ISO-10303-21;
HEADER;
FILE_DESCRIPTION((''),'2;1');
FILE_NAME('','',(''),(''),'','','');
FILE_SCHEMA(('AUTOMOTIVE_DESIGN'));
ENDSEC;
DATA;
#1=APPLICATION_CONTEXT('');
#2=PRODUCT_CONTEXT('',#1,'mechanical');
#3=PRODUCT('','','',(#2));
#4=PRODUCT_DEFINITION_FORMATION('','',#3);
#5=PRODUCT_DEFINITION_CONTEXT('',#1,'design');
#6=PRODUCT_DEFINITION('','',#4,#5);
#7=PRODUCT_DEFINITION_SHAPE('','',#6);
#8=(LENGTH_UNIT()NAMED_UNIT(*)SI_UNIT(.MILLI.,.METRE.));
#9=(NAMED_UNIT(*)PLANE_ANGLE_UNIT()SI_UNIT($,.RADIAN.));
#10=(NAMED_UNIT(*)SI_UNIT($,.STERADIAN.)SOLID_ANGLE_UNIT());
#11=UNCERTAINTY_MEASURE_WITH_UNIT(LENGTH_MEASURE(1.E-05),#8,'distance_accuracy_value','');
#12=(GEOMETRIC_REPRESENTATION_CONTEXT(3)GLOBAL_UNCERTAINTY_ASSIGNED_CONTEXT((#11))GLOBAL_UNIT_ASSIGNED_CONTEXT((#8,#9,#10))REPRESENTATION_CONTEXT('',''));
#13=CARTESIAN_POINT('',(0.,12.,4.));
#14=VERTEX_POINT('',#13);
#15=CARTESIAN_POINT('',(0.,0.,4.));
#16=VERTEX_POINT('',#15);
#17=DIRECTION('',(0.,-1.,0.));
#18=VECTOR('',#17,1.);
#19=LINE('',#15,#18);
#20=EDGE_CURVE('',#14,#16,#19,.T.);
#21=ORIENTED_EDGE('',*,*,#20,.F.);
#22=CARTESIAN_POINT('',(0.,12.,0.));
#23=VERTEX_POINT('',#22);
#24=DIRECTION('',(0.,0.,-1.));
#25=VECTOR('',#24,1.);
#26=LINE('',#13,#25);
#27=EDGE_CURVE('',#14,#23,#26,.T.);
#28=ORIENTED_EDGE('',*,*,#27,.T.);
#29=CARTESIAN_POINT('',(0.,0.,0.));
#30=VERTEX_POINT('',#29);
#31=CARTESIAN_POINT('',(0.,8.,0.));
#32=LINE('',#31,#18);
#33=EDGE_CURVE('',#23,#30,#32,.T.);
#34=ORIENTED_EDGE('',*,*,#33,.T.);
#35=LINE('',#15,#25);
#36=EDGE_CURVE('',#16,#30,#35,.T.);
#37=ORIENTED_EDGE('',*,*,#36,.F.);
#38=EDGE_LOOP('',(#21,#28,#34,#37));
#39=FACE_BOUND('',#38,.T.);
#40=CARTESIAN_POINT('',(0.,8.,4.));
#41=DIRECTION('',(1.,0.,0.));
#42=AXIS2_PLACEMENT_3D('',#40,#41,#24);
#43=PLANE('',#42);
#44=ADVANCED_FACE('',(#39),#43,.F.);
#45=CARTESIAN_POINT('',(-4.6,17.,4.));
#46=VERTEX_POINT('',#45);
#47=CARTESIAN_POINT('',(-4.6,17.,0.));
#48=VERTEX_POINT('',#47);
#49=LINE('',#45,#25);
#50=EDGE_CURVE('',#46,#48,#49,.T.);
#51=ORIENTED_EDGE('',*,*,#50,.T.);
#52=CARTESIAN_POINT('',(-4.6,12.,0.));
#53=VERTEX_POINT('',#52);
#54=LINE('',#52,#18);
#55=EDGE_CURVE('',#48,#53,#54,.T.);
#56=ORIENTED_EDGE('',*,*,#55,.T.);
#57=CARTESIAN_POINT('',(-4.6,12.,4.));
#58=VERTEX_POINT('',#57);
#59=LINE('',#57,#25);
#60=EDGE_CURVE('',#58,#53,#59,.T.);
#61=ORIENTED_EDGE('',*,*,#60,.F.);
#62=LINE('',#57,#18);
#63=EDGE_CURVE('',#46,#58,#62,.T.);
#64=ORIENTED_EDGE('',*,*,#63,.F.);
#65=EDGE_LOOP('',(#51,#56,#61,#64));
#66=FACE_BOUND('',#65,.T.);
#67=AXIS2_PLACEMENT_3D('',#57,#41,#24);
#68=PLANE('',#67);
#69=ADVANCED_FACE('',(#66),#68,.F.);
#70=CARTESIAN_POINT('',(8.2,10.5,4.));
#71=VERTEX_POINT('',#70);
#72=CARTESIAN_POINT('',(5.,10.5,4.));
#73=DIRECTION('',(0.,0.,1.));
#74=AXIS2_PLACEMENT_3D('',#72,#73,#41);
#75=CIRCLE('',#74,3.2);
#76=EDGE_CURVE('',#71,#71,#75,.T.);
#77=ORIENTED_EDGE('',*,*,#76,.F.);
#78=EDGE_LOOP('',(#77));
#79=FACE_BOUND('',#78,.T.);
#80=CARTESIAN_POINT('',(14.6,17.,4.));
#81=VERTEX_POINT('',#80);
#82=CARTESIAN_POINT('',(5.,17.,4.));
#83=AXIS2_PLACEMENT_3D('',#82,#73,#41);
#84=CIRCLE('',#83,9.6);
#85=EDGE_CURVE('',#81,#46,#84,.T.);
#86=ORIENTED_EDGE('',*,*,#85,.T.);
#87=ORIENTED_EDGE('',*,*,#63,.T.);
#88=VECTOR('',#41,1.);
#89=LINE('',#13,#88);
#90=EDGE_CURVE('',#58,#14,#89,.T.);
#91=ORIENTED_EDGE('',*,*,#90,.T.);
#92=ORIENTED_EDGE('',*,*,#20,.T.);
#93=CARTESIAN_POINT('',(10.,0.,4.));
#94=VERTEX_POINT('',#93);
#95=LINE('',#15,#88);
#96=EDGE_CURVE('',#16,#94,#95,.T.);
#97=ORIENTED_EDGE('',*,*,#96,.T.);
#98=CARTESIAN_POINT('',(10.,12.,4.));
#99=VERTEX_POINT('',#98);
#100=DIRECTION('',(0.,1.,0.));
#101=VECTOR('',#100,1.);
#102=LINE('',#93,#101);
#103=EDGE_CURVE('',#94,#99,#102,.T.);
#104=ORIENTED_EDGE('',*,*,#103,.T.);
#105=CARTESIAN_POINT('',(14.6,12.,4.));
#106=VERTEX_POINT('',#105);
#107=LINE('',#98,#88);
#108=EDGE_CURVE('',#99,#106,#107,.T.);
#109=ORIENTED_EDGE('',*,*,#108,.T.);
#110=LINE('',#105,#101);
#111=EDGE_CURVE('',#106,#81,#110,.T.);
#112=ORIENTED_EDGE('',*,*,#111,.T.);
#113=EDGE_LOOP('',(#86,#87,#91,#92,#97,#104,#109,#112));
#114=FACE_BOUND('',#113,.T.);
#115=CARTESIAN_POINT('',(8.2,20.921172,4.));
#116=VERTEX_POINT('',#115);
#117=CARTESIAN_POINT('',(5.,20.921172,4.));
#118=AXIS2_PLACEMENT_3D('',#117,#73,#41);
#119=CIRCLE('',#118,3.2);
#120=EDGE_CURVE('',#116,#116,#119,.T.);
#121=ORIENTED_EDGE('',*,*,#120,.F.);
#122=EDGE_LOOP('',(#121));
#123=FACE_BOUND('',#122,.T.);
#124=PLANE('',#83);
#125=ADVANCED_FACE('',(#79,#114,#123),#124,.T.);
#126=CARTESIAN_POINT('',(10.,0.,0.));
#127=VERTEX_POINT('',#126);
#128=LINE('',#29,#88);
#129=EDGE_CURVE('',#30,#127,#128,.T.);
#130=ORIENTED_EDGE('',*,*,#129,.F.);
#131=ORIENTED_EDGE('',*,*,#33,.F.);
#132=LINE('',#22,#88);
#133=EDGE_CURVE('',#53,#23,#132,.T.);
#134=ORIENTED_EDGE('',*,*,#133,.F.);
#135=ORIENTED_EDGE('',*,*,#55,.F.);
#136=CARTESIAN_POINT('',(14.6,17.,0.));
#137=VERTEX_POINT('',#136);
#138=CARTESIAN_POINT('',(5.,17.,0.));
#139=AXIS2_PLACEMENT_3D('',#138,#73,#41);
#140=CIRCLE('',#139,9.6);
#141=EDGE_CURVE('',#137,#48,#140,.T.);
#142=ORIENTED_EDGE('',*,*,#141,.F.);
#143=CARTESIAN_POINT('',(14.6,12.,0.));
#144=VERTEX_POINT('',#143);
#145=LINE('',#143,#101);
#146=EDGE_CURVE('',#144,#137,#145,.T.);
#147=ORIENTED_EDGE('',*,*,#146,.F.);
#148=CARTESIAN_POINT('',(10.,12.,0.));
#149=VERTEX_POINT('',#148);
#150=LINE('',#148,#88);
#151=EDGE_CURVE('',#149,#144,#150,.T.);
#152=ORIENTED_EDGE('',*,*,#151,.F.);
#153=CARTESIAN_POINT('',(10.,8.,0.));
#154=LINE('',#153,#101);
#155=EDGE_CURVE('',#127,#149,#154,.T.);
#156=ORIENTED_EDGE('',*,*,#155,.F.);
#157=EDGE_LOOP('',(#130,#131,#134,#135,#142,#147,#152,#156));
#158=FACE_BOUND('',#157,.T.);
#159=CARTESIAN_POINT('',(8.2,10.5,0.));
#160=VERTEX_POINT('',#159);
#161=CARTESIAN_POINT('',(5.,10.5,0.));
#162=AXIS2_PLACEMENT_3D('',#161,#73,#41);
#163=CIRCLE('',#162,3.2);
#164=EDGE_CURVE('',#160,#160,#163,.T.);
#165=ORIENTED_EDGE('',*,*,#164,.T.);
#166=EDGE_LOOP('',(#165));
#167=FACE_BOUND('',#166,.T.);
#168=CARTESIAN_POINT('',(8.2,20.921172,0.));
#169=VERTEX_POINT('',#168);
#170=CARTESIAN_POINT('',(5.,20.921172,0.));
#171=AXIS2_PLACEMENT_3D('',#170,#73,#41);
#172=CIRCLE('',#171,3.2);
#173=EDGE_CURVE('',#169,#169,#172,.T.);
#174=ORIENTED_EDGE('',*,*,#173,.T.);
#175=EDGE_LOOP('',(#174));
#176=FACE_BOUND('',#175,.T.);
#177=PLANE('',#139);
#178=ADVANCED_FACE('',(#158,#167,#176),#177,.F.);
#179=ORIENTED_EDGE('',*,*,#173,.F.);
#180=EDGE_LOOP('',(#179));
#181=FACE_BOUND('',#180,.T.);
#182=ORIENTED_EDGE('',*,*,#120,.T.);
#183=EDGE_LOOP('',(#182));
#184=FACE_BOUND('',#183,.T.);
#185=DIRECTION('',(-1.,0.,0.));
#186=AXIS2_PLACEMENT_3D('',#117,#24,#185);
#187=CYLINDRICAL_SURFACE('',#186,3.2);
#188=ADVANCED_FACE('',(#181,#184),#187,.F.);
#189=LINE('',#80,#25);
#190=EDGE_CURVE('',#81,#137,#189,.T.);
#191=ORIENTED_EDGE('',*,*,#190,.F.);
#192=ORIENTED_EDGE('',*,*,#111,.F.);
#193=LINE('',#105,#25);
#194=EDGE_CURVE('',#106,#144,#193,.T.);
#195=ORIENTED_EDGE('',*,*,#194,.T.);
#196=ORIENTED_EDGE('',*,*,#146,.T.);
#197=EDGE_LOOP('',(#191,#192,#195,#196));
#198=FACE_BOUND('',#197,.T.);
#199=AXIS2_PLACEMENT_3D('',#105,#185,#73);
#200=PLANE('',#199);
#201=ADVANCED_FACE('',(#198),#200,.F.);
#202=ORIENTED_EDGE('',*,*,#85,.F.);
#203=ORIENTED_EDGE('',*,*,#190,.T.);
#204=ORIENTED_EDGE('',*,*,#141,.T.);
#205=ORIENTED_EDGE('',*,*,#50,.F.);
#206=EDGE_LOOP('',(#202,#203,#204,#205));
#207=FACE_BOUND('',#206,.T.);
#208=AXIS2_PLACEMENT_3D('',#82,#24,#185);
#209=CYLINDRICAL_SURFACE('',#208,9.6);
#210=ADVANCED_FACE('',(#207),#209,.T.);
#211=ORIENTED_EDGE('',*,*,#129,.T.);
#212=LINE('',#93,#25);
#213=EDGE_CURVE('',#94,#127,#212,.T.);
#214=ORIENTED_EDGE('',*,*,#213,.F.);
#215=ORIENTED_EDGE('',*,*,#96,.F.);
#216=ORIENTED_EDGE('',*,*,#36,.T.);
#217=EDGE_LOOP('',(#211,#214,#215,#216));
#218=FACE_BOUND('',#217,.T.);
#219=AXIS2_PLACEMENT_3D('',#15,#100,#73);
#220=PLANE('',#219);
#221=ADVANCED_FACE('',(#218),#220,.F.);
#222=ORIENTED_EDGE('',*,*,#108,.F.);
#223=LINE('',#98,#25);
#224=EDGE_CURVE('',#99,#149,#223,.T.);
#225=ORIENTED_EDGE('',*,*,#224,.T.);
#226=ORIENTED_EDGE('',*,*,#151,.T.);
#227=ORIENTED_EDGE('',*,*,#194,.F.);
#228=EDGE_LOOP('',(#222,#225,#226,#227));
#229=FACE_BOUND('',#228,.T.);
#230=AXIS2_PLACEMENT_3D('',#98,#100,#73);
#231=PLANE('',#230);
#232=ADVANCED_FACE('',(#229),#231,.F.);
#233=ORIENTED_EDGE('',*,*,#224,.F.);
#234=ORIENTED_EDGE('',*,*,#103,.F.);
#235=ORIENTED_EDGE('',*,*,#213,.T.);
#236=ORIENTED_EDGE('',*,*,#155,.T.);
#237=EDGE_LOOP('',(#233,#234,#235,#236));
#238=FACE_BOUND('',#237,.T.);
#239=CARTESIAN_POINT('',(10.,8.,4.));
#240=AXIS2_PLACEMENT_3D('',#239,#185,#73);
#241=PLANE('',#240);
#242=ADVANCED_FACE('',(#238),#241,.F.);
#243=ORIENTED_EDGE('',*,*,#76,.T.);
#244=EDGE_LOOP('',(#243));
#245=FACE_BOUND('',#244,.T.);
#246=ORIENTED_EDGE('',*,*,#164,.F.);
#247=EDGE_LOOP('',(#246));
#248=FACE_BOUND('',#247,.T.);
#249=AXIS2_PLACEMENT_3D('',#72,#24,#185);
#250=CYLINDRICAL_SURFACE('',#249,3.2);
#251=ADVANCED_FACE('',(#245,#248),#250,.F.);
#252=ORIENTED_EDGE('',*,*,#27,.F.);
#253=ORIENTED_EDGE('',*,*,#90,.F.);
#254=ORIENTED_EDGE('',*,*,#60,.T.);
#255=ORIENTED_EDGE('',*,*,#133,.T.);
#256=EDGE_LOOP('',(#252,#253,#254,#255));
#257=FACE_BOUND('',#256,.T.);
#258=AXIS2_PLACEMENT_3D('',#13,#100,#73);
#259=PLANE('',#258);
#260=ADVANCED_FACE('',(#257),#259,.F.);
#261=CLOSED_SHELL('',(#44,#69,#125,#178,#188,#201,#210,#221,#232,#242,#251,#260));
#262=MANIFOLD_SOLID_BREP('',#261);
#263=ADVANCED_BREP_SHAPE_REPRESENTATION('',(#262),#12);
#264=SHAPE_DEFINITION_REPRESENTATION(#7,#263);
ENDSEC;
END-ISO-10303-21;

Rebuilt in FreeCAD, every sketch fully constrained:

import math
import FreeCAD as App
import Part
import Sketcher
from FreeCAD import Vector
Q = App.Units.Quantity


def add_polygon(sketch, points):
    """Adds a closed chain of lines whose ends are joined by coincident constraints."""
    first, n = sketch.GeometryCount, len(points)
    for a, b in zip(points, points[1:] + points[:1]):
        sketch.addGeometry(Part.LineSegment(App.Vector(*a, 0), App.Vector(*b, 0)), False)
    for i in range(n):
        sketch.addConstraint(Sketcher.Constraint("Coincident", first + i, 2, first + (i + 1) % n, 1))

doc = App.newDocument("Part")
body = doc.addObject("PartDesign::Body", "Body")

sketch1 = body.newObject("Sketcher::SketchObject", "Sketch")
sketch1.AttachmentSupport = (doc.getObject("XY_Plane"), [""])
sketch1.MapMode = "FlatFace"
sketch1.addGeometry(Part.LineSegment(Vector(0, 0, 0), Vector(10, 0, 0)), False)
sketch1.addGeometry(Part.LineSegment(Vector(10, 0, 0), Vector(10, 4, 0)), False)
sketch1.addGeometry(Part.LineSegment(Vector(10, 4, 0), Vector(12.5, 4, 0)), False)
sketch1.addGeometry(Part.LineSegment(Vector(12.5, 4, 0), Vector(12.5, 8, 0)), False)
sketch1.addGeometry(Part.LineSegment(Vector(12.5, 8, 0), Vector(10, 8, 0)), False)
sketch1.addGeometry(Part.LineSegment(Vector(10, 8, 0), Vector(10, 12, 0)), False)
sketch1.addGeometry(Part.LineSegment(Vector(10, 12, 0), Vector(14.6, 12, 0)), False)
sketch1.addGeometry(Part.LineSegment(Vector(14.6, 12, 0), Vector(14.6, 17, 0)), False)
sketch1.addGeometry(Part.ArcOfCircle(Part.Circle(Vector(5, 17, 0), Vector(0, 0, 1), 9.6), math.radians(0), math.radians(180)), False)
sketch1.addGeometry(Part.LineSegment(Vector(-4.6, 17, 0), Vector(-4.6, 12, 0)), False)
sketch1.addGeometry(Part.LineSegment(Vector(-4.6, 12, 0), Vector(0, 12, 0)), False)
sketch1.addGeometry(Part.LineSegment(Vector(0, 12, 0), Vector(0, 8, 0)), False)
sketch1.addGeometry(Part.LineSegment(Vector(0, 8, 0), Vector(-2.5, 8, 0)), False)
sketch1.addGeometry(Part.LineSegment(Vector(-2.5, 8, 0), Vector(-2.5, 4, 0)), False)
sketch1.addGeometry(Part.LineSegment(Vector(-2.5, 4, 0), Vector(0, 4, 0)), False)
sketch1.addGeometry(Part.LineSegment(Vector(0, 4, 0), Vector(0, 0, 0)), False)
sketch1.addConstraint(Sketcher.Constraint("Coincident", 0, 2, 1, 1))
sketch1.addConstraint(Sketcher.Constraint("Coincident", 1, 2, 2, 1))
sketch1.addConstraint(Sketcher.Constraint("Coincident", 2, 2, 3, 1))
sketch1.addConstraint(Sketcher.Constraint("Coincident", 3, 2, 4, 1))
sketch1.addConstraint(Sketcher.Constraint("Coincident", 4, 2, 5, 1))
sketch1.addConstraint(Sketcher.Constraint("Coincident", 5, 2, 6, 1))
sketch1.addConstraint(Sketcher.Constraint("Coincident", 6, 2, 7, 1))
sketch1.addConstraint(Sketcher.Constraint("Tangent", 7, 2, 8, 1))
sketch1.addConstraint(Sketcher.Constraint("Tangent", 8, 2, 9, 1))
sketch1.addConstraint(Sketcher.Constraint("Coincident", 9, 2, 10, 1))
sketch1.addConstraint(Sketcher.Constraint("Coincident", 10, 2, 11, 1))
sketch1.addConstraint(Sketcher.Constraint("Coincident", 11, 2, 12, 1))
sketch1.addConstraint(Sketcher.Constraint("Coincident", 12, 2, 13, 1))
sketch1.addConstraint(Sketcher.Constraint("Coincident", 13, 2, 14, 1))
sketch1.addConstraint(Sketcher.Constraint("Coincident", 14, 2, 15, 1))
sketch1.addConstraint(Sketcher.Constraint("Coincident", 15, 2, 0, 1))
sketch1.addConstraint(Sketcher.Constraint("Horizontal", 0))
sketch1.addConstraint(Sketcher.Constraint("Vertical", 1))
sketch1.addConstraint(Sketcher.Constraint("Horizontal", 2))
sketch1.addConstraint(Sketcher.Constraint("Vertical", 3))
sketch1.addConstraint(Sketcher.Constraint("Horizontal", 4))
sketch1.addConstraint(Sketcher.Constraint("Vertical", 5))
sketch1.addConstraint(Sketcher.Constraint("Horizontal", 6))
sketch1.addConstraint(Sketcher.Constraint("Vertical", 7))
sketch1.addConstraint(Sketcher.Constraint("Vertical", 9))
sketch1.addConstraint(Sketcher.Constraint("Horizontal", 10))
sketch1.addConstraint(Sketcher.Constraint("Vertical", 11))
sketch1.addConstraint(Sketcher.Constraint("Horizontal", 12))
sketch1.addConstraint(Sketcher.Constraint("Vertical", 13))
sketch1.addConstraint(Sketcher.Constraint("Horizontal", 14))
sketch1.addConstraint(Sketcher.Constraint("Vertical", 15))
sketch1.addConstraint(Sketcher.Constraint("Coincident", 15, 2, -1, 1))
sketch1.addConstraint(Sketcher.Constraint("PointOnObject", 10, 2, -2))
sketch1.addConstraint(Sketcher.Constraint("Horizontal", 6, 2, 9, 2))
sketch1.addConstraint(Sketcher.Constraint("Horizontal", 4, 2, 11, 2))
sketch1.addConstraint(Sketcher.Constraint("Horizontal", 2, 2, 13, 2))
sketch1.addConstraint(Sketcher.Constraint("Vertical", 1, 2, 4, 2))
sketch1.addConstraint(Sketcher.Constraint("Equal", 6, 10))
sketch1.addConstraint(Sketcher.Constraint("Equal", 4, 12))
sketch1.addConstraint(Sketcher.Constraint("Equal", 1, 3))
sketch1.addConstraint(Sketcher.Constraint("Equal", 3, 5))
sketch1.addConstraint(Sketcher.Constraint("Radius", 8, Q("9.6 mm")))
sketch1.addConstraint(Sketcher.Constraint("DistanceX", 0, 1, 0, 2, Q("10 mm")))
sketch1.addConstraint(Sketcher.Constraint("DistanceY", 1, 1, 1, 2, Q("4 mm")))
sketch1.addConstraint(Sketcher.Constraint("DistanceY", 7, 1, 7, 2, Q("5 mm")))
sketch1.addConstraint(Sketcher.Constraint("DistanceX", 2, 1, 2, 2, Q("2.5 mm")))
pad1 = body.newObject("PartDesign::Pad", "Pad")
pad1.Profile = sketch1
pad1.Length = 4

sketch2 = body.newObject("Sketcher::SketchObject", "Sketch001")
sketch2.AttachmentSupport = (doc.getObject("XY_Plane"), [""])
sketch2.MapMode = "FlatFace"
sketch2.AttachmentOffset = App.Placement(Vector(0, 0, 4), App.Rotation())
add_polygon(sketch2, [(-2.5, 8), (-2.5, 4), (0, 4), (0, 8)])
add_polygon(sketch2, [(10, 8), (10, 4), (12.5, 4), (12.5, 8)])
sketch2.addConstraint(Sketcher.Constraint("Vertical", 0))
sketch2.addConstraint(Sketcher.Constraint("Horizontal", 1))
sketch2.addConstraint(Sketcher.Constraint("Vertical", 2))
sketch2.addConstraint(Sketcher.Constraint("Horizontal", 3))
sketch2.addConstraint(Sketcher.Constraint("Vertical", 4))
sketch2.addConstraint(Sketcher.Constraint("Horizontal", 5))
sketch2.addConstraint(Sketcher.Constraint("Vertical", 6))
sketch2.addConstraint(Sketcher.Constraint("Horizontal", 7))
sketch2.addConstraint(Sketcher.Constraint("PointOnObject", 1, 2, -2))
sketch2.addConstraint(Sketcher.Constraint("Horizontal", 1, 2, 4, 2))
sketch2.addConstraint(Sketcher.Constraint("Horizontal", 3, 2, 6, 2))
sketch2.addConstraint(Sketcher.Constraint("Equal", 3, 5))
sketch2.addConstraint(Sketcher.Constraint("DistanceY", 0, 2, 0, 1, Q("4 mm")))
sketch2.addConstraint(Sketcher.Constraint("DistanceX", 1, 1, 1, 2, Q("2.5 mm")))
sketch2.addConstraint(Sketcher.Constraint("DistanceY", -1, 1, 0, 2, Q("4 mm")))
sketch2.addConstraint(Sketcher.Constraint("DistanceX", -1, 1, 4, 2, Q("10 mm")))
pocket1 = body.newObject("PartDesign::Pocket", "Pocket")
pocket1.Profile = sketch2
pocket1.Length = 4

sketch3 = body.newObject("Sketcher::SketchObject", "Sketch002")
sketch3.AttachmentSupport = (doc.getObject("XY_Plane"), [""])
sketch3.MapMode = "FlatFace"
sketch3.addGeometry(Part.Circle(Vector(5, 20.9, 0), Vector(0, 0, 1), 3.2), False)
sketch3.addGeometry(Part.Circle(Vector(5, 10.5, 0), Vector(0, 0, 1), 3.2), False)
sketch3.addConstraint(Sketcher.Constraint("Equal", 0, 1))
sketch3.addConstraint(Sketcher.Constraint("Vertical", 0, 3, 1, 3))
sketch3.addConstraint(Sketcher.Constraint("Diameter", 0, Q("6.4 mm")))
sketch3.addConstraint(Sketcher.Constraint("DistanceX", -1, 1, 0, 3, Q("5 mm")))
sketch3.addConstraint(Sketcher.Constraint("DistanceY", -1, 1, 1, 3, Q("10.5 mm")))
sketch3.addConstraint(Sketcher.Constraint("DistanceY", -1, 1, 0, 3, Q("20.921172 mm")))
pocket2 = body.newObject("PartDesign::Pocket", "Pocket001")
pocket2.Profile = sketch3
pocket2.Type = "ThroughAll"
pocket2.Reversed = True

doc.recompute()
